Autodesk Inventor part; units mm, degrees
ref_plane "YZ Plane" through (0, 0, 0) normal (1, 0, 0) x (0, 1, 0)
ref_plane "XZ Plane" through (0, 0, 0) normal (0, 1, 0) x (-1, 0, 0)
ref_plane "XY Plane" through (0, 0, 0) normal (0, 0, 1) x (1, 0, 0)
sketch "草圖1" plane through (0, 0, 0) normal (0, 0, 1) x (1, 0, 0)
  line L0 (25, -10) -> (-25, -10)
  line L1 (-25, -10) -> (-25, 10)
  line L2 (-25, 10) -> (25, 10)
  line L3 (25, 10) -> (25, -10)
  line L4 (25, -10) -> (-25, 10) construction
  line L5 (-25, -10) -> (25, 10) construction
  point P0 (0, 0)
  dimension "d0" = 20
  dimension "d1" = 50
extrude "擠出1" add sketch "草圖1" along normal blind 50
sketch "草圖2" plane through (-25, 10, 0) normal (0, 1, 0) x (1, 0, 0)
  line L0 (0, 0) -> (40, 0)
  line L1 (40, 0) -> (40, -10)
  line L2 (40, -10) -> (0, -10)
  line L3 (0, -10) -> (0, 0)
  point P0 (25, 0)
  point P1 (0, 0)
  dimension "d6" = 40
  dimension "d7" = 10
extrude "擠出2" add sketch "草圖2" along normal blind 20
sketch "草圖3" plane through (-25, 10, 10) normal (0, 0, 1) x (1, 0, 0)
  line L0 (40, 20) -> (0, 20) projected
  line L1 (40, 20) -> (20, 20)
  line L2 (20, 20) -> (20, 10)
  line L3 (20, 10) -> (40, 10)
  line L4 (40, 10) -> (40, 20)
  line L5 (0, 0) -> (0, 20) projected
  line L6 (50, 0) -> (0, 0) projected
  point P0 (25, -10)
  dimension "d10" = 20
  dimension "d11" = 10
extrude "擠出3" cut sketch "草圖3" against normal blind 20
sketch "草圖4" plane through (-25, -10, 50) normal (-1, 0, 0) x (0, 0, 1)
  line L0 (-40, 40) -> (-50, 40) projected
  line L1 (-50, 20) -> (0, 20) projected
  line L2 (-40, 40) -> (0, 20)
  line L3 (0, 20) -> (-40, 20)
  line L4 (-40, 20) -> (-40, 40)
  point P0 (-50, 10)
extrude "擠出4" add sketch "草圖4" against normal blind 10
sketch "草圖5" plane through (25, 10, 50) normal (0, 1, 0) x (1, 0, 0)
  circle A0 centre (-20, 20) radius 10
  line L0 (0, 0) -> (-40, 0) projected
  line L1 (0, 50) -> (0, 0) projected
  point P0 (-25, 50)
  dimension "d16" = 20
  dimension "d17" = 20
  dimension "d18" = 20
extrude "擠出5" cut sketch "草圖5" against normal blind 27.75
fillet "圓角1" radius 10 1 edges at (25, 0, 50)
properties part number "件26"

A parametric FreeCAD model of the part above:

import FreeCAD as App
import Part
import Sketcher

V = App.Vector
Q = App.Units.Quantity


def edges_at(feature, points):
    """Names of the edges that pass closest to the given points."""
    edges = feature.Shape.Edges
    near = lambda p: min(range(len(edges)), key=lambda i: edges[i].distToShape(Part.Vertex(*p))[0])
    return sorted({f"Edge{near(p) + 1}" for p in points})


def add_polygon(sketch, points):
    """Adds a closed chain of lines whose ends are joined by coincident constraints."""
    first, n = sketch.GeometryCount, len(points)
    for a, b in zip(points, points[1:] + points[:1]):
        sketch.addGeometry(Part.LineSegment(App.Vector(*a, 0), App.Vector(*b, 0)), False)
    for i in range(n):
        sketch.addConstraint(Sketcher.Constraint("Coincident", first + i, 2, first + (i + 1) % n, 1))

doc = App.newDocument("Part")
params = doc.addObject("Spreadsheet::Sheet", "Params")
for row, (alias, value) in enumerate([
    ("sketch1_width", "50 mm"),
    ("sketch1_height", "20 mm"),
    ("pad1_length", "50 mm"),
    ("sketch2_width", "40 mm"),
    ("sketch2_height", "10 mm"),
    ("pad2_length", "20 mm"),
    ("sketch3_width", "20 mm"),
    ("sketch3_height", "10 mm"),
    ("pocket1_length", "20 mm"),
    ("sketch4_width", "20 mm"),
    ("sketch4_height", "40 mm"),
    ("pad3_length", "10 mm"),
    ("sketch5_diameter", "20 mm"),
    ("pocket2_length", "27.75 mm"),
    ("fillet_radius", "10 mm"),
], start=1):
    params.set(f"A{row}", alias)
    params.set(f"B{row}", "=" + value)
    params.setAlias(f"B{row}", alias)

body = doc.addObject("PartDesign::Body", "Body")

sketch1 = body.newObject("Sketcher::SketchObject", "Sketch")
sketch1.AttachmentSupport = (doc.getObject("XY_Plane"), [""])
sketch1.MapMode = "FlatFace"
add_polygon(sketch1, [(-25, -10), (25, -10), (25, 10), (-25, 10)])
sketch1.addConstraint(Sketcher.Constraint("Horizontal", 0))
sketch1.addConstraint(Sketcher.Constraint("Vertical", 1))
sketch1.addConstraint(Sketcher.Constraint("Horizontal", 2))
sketch1.addConstraint(Sketcher.Constraint("Vertical", 3))
sketch1.addConstraint(Sketcher.Constraint("Symmetric", 0, 2, 2, 2, -1, 1))
sketch1.addConstraint(Sketcher.Constraint("DistanceX", 0, 1, 0, 2, Q("50 mm")))
sketch1.addConstraint(Sketcher.Constraint("DistanceY", 1, 1, 1, 2, Q("20 mm")))
sketch1.setExpression("Constraints[9]", "Params.sketch1_width")
sketch1.setExpression("Constraints[10]", "Params.sketch1_height")
pad1 = body.newObject("PartDesign::Pad", "Pad")
pad1.Profile = sketch1
pad1.setExpression("Length", "Params.pad1_length")

sketch2 = body.newObject("Sketcher::SketchObject", "Sketch001")
sketch2.AttachmentSupport = (doc.getObject("XZ_Plane"), [""])
sketch2.MapMode = "FlatFace"
sketch2.AttachmentOffset = App.Placement(V(0, 0, -10), App.Rotation())
add_polygon(sketch2, [(15, 0), (-25, 0), (-25, 10), (15, 10)])
sketch2.addConstraint(Sketcher.Constraint("Horizontal", 0))
sketch2.addConstraint(Sketcher.Constraint("Vertical", 1))
sketch2.addConstraint(Sketcher.Constraint("Horizontal", 2))
sketch2.addConstraint(Sketcher.Constraint("Vertical", 3))
sketch2.addConstraint(Sketcher.Constraint("PointOnObject", 0, 2, -1))
sketch2.addConstraint(Sketcher.Constraint("DistanceX", 0, 2, 0, 1, Q("40 mm")))
sketch2.addConstraint(Sketcher.Constraint("DistanceY", 1, 1, 1, 2, Q("10 mm")))
sketch2.addConstraint(Sketcher.Constraint("DistanceX", 0, 2, -1, 1, Q("25 mm")))
sketch2.setExpression("Constraints[9]", "Params.sketch2_width")
sketch2.setExpression("Constraints[10]", "Params.sketch2_height")
pad2 = body.newObject("PartDesign::Pad", "Pad001")
pad2.Profile = sketch2
pad2.setExpression("Length", "Params.pad2_length")
pad2.Reversed = True

sketch3 = body.newObject("Sketcher::SketchObject", "Sketch002")
sketch3.AttachmentSupport = (doc.getObject("XY_Plane"), [""])
sketch3.MapMode = "FlatFace"
sketch3.AttachmentOffset = App.Placement(V(0, 0, 10), App.Rotation())
add_polygon(sketch3, [(15, 20), (15, 30), (-5, 30), (-5, 20)])
sketch3.addConstraint(Sketcher.Constraint("Vertical", 0))
sketch3.addConstraint(Sketcher.Constraint("Horizontal", 1))
sketch3.addConstraint(Sketcher.Constraint("Vertical", 2))
sketch3.addConstraint(Sketcher.Constraint("Horizontal", 3))
sketch3.addConstraint(Sketcher.Constraint("DistanceX", 1, 2, 1, 1, Q("20 mm")))
sketch3.addConstraint(Sketcher.Constraint("DistanceY", 0, 1, 0, 2, Q("10 mm")))
sketch3.addConstraint(Sketcher.Constraint("DistanceY", -1, 1, 2, 2, Q("20 mm")))
sketch3.addConstraint(Sketcher.Constraint("DistanceX", -1, 1, 0, 2, Q("15 mm")))
sketch3.setExpression("Constraints[8]", "Params.sketch3_width")
sketch3.setExpression("Constraints[9]", "Params.sketch3_height")
pocket1 = body.newObject("PartDesign::Pocket", "Pocket")
pocket1.Profile = sketch3
pocket1.setExpression("Length", "Params.pocket1_length")

sketch4 = body.newObject("Sketcher::SketchObject", "Sketch003")
sketch4.AttachmentSupport = (doc.getObject("YZ_Plane"), [""])
sketch4.MapMode = "FlatFace"
sketch4.AttachmentOffset = App.Placement(V(0, 0, -25), App.Rotation())
add_polygon(sketch4, [(30, 10), (10, 10), (10, 50)])
sketch4.addConstraint(Sketcher.Constraint("Horizontal", 0))
sketch4.addConstraint(Sketcher.Constraint("Vertical", 1))
sketch4.addConstraint(Sketcher.Constraint("DistanceX", 0, 2, 0, 1, Q("20 mm")))
sketch4.addConstraint(Sketcher.Constraint("DistanceY", 1, 1, 1, 2, Q("40 mm")))
sketch4.addConstraint(Sketcher.Constraint("DistanceX", -1, 1, 0, 2, Q("10 mm")))
sketch4.addConstraint(Sketcher.Constraint("DistanceY", -1, 1, 0, 2, Q("10 mm")))
sketch4.setExpression("Constraints[5]", "Params.sketch4_width")
sketch4.setExpression("Constraints[6]", "Params.sketch4_height")
pad3 = body.newObject("PartDesign::Pad", "Pad002")
pad3.Profile = sketch4
pad3.setExpression("Length", "Params.pad3_length")

sketch5 = body.newObject("Sketcher::SketchObject", "Sketch004")
sketch5.AttachmentSupport = (doc.getObject("XZ_Plane"), [""])
sketch5.MapMode = "FlatFace"
sketch5.AttachmentOffset = App.Placement(V(0, 0, -10), App.Rotation())
sketch5.addGeometry(Part.Circle(V(5, 30, 0), V(0, 0, 1), 10), False)
sketch5.addConstraint(Sketcher.Constraint("Diameter", 0, Q("20 mm")))
sketch5.addConstraint(Sketcher.Constraint("DistanceX", -1, 1, 0, 3, Q("5 mm")))
sketch5.addConstraint(Sketcher.Constraint("DistanceY", -1, 1, 0, 3, Q("30 mm")))
sketch5.setExpression("Constraints[0]", "Params.sketch5_diameter")
pocket2 = body.newObject("PartDesign::Pocket", "Pocket001")
pocket2.Profile = sketch5
pocket2.setExpression("Length", "Params.pocket2_length")
pocket2.Reversed = True
doc.recompute()

fillet = body.newObject("PartDesign::Fillet", "Fillet")
fillet.Base = (pocket2, edges_at(pocket2, [(25, 0, 50)]))
fillet.setExpression("Radius", "Params.fillet_radius")

doc.recompute()
